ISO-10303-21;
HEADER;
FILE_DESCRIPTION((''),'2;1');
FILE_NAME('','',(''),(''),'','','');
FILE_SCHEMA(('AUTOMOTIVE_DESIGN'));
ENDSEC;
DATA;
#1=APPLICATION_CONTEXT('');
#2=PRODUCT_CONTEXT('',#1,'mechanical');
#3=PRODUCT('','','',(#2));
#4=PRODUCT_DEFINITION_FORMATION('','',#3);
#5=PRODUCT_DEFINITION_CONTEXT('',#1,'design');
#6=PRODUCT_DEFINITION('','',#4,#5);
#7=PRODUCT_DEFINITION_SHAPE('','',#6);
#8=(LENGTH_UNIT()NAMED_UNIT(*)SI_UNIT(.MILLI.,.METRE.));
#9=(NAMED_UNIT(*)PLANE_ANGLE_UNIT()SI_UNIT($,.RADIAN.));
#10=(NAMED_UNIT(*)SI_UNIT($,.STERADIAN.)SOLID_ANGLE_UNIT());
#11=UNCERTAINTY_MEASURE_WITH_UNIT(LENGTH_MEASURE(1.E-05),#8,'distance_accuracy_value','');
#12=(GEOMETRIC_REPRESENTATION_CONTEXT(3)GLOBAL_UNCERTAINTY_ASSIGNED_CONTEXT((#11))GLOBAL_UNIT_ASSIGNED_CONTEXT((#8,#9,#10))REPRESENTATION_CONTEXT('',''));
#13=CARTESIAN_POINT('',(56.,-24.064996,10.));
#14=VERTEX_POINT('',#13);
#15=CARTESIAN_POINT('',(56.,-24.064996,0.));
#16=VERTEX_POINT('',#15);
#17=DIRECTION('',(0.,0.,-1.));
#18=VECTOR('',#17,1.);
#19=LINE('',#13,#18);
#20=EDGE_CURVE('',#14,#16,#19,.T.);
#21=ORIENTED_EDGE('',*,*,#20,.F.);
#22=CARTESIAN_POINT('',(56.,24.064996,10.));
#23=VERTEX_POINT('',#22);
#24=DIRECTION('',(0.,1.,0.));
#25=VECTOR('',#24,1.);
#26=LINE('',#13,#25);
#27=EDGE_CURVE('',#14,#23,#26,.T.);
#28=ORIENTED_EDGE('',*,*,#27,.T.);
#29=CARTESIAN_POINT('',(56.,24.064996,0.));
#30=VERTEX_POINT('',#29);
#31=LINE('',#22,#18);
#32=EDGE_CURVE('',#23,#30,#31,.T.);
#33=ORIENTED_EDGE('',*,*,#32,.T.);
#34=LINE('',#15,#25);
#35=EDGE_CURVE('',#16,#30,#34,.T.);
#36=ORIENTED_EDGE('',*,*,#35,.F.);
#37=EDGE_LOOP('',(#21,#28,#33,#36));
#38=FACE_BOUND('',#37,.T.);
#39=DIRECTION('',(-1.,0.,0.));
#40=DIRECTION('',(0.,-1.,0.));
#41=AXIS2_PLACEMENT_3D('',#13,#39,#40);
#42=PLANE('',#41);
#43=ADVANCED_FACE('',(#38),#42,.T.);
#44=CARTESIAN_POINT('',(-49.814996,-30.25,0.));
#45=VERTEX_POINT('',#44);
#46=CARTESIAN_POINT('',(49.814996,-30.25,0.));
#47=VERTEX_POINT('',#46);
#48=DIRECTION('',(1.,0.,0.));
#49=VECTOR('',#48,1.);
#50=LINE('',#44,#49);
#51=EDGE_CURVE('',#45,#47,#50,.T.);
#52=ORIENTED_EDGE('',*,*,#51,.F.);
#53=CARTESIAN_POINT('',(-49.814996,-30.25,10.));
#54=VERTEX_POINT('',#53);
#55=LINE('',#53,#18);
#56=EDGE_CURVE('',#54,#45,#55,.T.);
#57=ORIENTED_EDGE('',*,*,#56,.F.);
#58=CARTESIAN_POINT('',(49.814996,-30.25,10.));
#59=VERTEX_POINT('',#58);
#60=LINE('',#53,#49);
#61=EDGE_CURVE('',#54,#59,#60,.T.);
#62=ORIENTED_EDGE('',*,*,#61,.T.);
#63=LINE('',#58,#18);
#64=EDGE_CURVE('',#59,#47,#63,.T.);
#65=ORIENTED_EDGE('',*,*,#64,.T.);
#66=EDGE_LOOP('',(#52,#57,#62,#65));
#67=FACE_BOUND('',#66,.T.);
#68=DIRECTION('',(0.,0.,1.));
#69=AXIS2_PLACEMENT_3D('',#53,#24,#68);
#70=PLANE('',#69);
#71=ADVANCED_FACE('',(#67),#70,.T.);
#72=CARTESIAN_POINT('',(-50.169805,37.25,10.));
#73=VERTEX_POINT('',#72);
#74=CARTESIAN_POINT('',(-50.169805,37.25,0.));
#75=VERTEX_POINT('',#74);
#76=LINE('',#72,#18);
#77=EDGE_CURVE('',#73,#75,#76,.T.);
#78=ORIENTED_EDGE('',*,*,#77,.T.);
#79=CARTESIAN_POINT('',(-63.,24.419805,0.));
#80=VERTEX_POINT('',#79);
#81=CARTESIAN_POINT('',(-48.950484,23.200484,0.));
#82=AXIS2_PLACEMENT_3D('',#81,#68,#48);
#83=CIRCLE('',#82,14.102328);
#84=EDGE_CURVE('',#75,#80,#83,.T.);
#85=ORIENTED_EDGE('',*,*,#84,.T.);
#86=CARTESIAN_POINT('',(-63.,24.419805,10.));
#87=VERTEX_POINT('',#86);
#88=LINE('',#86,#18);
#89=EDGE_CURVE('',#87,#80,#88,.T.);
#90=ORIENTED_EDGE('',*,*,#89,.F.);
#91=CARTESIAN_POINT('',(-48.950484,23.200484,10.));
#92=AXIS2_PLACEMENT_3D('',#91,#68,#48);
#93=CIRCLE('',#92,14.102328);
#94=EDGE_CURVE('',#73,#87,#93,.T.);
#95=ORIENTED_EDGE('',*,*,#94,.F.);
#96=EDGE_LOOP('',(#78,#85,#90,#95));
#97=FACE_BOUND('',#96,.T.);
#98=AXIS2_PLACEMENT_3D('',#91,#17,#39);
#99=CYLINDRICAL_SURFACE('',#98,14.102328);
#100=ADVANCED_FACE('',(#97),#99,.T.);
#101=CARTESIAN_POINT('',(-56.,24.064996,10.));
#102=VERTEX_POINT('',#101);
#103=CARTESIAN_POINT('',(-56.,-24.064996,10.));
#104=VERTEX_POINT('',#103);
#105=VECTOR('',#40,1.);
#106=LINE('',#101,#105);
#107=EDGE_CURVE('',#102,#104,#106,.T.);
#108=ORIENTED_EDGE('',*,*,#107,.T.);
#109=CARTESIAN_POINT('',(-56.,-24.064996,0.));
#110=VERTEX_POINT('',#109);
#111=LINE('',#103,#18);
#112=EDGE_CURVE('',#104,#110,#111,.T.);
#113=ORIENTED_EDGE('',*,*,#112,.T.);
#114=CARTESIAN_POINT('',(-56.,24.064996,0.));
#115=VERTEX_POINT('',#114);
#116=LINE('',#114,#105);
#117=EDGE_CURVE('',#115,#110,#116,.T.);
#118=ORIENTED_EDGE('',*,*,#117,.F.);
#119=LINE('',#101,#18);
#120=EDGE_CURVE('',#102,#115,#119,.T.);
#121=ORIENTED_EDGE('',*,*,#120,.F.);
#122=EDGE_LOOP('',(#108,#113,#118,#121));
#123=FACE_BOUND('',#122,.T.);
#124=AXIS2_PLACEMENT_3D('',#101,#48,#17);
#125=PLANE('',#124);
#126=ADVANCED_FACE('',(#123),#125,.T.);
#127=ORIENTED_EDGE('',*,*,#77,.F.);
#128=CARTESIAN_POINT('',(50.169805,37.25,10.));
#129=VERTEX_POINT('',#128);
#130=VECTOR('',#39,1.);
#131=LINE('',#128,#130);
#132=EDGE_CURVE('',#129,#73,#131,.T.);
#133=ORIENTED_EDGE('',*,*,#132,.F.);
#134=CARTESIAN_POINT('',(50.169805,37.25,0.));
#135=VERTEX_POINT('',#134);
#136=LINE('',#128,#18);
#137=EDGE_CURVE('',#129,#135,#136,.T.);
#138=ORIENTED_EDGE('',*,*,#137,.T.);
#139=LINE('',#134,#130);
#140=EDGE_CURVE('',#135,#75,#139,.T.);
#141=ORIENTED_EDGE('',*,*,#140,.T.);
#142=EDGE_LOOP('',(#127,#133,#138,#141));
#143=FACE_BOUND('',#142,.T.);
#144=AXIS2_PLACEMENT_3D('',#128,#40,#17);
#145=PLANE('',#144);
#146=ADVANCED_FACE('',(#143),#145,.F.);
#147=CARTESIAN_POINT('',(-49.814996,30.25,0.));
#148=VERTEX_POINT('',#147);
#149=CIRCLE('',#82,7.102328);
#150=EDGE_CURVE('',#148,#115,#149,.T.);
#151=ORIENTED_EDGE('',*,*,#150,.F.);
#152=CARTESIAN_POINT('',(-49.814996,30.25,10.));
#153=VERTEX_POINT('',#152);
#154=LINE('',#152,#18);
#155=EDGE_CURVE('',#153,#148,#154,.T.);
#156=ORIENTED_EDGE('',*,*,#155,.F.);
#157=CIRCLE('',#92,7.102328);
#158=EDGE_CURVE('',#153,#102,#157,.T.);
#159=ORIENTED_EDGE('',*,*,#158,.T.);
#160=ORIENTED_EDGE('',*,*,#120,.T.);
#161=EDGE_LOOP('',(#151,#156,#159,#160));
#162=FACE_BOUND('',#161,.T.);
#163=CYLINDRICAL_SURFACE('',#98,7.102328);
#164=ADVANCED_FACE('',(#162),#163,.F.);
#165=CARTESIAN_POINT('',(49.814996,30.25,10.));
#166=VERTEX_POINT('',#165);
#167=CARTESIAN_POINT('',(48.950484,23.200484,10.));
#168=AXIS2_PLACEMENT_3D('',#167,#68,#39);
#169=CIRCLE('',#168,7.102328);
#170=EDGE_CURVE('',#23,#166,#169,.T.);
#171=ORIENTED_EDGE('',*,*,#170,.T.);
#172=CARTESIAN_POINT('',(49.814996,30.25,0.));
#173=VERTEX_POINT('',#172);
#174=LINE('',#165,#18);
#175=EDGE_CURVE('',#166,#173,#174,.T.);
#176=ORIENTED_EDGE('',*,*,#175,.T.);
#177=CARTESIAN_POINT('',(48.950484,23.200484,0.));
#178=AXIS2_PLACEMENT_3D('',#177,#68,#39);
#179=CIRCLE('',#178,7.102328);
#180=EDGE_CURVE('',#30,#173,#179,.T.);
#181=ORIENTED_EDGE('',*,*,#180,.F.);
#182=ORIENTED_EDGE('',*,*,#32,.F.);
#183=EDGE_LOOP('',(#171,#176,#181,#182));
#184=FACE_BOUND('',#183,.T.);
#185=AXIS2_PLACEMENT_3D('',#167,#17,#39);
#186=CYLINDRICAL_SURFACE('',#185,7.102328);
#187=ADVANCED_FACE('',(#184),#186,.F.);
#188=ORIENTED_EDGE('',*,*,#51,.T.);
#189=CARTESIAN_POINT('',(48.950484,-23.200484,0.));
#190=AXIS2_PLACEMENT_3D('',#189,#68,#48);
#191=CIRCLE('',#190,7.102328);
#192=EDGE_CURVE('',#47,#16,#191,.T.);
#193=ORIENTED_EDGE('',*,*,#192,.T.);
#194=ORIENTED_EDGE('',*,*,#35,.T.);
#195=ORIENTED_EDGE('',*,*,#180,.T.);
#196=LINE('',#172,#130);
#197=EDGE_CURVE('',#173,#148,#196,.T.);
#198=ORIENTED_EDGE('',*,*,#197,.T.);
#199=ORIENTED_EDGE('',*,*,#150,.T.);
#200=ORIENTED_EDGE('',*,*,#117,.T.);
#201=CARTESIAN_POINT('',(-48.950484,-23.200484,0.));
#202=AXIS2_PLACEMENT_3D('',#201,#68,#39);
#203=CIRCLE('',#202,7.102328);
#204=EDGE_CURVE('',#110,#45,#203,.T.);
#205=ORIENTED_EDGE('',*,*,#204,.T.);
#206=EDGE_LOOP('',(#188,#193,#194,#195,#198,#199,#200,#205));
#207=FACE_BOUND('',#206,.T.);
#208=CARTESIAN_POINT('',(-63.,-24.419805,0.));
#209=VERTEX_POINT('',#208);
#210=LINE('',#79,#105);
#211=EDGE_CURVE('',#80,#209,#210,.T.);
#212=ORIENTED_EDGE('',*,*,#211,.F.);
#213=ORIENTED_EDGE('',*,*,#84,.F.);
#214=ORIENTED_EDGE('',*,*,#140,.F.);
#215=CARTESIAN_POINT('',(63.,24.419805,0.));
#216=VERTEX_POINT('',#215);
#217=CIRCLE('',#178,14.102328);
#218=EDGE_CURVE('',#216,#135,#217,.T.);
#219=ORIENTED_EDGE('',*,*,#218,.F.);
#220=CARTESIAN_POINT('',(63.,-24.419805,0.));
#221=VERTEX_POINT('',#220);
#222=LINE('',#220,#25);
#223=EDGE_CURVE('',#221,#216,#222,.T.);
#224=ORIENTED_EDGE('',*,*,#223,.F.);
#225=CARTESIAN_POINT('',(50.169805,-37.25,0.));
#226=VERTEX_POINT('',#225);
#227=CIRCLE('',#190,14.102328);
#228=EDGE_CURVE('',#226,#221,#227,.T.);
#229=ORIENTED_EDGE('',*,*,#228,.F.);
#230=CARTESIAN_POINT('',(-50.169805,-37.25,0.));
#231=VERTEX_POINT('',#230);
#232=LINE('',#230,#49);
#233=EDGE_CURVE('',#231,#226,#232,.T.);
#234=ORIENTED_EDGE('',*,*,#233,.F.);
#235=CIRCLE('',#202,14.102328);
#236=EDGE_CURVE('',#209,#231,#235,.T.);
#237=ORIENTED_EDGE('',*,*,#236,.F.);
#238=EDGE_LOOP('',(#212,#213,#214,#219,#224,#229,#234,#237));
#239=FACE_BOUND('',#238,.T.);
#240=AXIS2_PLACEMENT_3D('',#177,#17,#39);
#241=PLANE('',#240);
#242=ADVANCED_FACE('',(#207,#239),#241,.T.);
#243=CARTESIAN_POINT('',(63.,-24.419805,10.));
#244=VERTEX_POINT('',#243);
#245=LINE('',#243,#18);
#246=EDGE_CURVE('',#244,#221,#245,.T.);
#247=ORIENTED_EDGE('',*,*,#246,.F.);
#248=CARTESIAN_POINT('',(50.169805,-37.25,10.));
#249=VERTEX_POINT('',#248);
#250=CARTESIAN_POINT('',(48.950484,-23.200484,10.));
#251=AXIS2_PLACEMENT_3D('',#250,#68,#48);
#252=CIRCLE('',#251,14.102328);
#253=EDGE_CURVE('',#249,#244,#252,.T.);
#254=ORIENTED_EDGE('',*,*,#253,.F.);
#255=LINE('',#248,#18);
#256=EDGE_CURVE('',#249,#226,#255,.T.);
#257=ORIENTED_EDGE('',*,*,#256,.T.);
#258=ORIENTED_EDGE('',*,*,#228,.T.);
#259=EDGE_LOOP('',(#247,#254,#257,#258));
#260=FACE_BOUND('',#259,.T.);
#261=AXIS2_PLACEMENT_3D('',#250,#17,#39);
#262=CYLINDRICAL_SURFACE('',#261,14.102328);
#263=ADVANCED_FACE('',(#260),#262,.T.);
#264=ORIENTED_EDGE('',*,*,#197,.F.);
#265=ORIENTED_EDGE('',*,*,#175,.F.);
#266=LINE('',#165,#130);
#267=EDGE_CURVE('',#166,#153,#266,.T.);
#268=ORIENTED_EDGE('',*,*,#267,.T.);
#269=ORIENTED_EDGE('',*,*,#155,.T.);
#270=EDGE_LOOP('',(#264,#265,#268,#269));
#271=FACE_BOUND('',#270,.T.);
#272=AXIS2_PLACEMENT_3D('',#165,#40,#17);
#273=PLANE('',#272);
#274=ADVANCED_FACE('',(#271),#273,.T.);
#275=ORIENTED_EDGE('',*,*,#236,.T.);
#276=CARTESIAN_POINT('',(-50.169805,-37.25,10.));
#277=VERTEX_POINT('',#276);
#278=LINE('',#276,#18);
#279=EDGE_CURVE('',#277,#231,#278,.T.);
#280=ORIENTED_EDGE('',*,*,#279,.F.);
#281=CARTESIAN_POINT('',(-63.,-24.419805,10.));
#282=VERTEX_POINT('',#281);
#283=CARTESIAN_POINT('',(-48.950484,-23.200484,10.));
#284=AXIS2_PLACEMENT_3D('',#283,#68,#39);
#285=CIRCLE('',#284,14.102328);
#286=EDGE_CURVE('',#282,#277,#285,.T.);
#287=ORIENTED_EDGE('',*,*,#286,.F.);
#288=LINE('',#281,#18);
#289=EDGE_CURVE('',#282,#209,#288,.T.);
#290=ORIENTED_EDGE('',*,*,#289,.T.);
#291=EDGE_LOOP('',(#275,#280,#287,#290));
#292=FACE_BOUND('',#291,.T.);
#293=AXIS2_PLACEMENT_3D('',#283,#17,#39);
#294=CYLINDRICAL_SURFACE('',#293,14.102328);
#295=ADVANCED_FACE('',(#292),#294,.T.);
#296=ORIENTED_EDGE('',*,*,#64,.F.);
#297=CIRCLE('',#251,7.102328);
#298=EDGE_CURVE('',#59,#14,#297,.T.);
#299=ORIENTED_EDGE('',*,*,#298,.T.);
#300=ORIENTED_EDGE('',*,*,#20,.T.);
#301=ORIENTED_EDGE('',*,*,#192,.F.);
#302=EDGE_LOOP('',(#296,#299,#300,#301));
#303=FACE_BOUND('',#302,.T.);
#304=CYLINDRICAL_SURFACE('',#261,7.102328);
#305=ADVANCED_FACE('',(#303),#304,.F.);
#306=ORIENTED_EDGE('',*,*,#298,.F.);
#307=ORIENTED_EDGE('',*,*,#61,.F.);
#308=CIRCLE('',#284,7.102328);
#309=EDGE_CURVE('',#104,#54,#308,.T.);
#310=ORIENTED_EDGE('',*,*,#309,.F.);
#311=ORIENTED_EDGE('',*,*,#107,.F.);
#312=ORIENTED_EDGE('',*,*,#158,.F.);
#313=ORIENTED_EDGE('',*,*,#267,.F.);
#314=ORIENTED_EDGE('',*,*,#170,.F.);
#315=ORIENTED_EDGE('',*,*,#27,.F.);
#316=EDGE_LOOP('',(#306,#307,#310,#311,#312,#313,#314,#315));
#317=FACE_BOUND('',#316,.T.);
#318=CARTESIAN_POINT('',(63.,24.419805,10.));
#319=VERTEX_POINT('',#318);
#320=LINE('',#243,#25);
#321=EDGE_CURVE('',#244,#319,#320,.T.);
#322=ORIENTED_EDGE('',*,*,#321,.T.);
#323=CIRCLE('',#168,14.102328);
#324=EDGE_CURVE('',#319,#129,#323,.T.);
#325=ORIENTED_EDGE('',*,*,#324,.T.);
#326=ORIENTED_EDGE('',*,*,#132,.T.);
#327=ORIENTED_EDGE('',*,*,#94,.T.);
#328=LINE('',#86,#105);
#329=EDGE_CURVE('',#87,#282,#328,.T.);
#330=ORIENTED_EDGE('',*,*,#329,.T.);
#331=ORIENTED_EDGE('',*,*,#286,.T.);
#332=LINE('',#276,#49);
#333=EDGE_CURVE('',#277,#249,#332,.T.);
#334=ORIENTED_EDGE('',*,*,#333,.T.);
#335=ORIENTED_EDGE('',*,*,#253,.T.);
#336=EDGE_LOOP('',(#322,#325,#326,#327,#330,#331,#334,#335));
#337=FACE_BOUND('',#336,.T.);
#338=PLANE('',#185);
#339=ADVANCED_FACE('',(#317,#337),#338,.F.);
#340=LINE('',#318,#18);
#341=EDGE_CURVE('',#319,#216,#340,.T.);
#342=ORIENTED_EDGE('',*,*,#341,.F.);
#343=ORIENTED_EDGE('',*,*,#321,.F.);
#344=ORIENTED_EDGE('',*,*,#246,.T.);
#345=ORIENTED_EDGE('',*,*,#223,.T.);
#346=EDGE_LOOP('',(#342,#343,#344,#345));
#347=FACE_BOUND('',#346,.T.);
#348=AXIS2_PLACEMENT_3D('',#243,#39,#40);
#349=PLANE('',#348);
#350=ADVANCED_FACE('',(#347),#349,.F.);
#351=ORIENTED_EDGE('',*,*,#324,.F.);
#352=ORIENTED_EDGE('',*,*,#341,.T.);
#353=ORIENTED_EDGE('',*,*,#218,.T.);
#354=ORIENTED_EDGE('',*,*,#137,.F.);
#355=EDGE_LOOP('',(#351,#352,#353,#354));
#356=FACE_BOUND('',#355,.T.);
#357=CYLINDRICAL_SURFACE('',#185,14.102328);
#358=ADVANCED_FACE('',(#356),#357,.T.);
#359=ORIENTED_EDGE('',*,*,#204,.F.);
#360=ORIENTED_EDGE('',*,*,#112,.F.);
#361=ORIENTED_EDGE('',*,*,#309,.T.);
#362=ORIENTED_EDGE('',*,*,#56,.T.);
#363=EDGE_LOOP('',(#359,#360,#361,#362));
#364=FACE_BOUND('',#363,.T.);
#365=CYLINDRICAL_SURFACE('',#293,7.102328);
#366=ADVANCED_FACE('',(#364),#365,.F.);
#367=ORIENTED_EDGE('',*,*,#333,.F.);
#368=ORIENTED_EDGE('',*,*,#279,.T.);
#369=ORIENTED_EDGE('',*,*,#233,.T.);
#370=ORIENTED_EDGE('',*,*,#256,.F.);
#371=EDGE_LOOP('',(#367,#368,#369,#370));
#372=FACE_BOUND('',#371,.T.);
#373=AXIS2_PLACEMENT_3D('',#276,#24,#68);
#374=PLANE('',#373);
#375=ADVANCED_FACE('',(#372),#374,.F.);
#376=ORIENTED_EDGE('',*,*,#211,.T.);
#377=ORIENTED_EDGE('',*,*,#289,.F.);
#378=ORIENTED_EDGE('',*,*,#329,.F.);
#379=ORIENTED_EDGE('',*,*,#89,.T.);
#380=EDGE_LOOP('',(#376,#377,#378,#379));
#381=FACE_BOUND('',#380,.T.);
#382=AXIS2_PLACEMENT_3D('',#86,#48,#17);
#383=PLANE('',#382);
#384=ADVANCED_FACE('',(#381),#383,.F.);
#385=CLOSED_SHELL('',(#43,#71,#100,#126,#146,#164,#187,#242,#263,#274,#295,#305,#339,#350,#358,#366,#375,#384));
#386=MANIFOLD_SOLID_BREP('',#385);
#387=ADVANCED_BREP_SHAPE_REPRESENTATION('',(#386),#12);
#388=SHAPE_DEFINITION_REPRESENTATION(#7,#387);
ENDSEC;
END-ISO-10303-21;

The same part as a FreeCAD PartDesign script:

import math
import FreeCAD as App
import Part
import Sketcher
Q = App.Units.Quantity

doc = App.newDocument("Part")
body = doc.addObject("PartDesign::Body", "Body")

# Sketch on XY plane
sketch1 = doc.addObject("Sketcher::SketchObject", "Sketch")
body.addObject(sketch1)
sketch1.AttachmentSupport = (doc.XY_Plane, [""])
sketch1.MapMode = "FlatFace"
sketch1.addGeometry([
    Part.LineSegment(App.Vector(63, -24.419805, 0), App.Vector(63, 24.419805, 0)),  # 0
    Part.ArcOfCircle(Part.Circle(App.Vector(48.950484, 23.200484, 0), App.Vector(0, 0, 1), 14.102328), math.radians(4.960123), math.radians(85.039877)),  # 1
    Part.LineSegment(App.Vector(50.169805, 37.25, 0), App.Vector(-50.169805, 37.25, 0)),  # 2
    Part.ArcOfCircle(Part.Circle(App.Vector(-48.950484, 23.200484, 0), App.Vector(0, 0, 1), 14.102328), math.radians(94.960123), math.radians(175.039877)),  # 3
    Part.LineSegment(App.Vector(-63, 24.419805, 0), App.Vector(-63, -24.419805, 0)),  # 4
    Part.ArcOfCircle(Part.Circle(App.Vector(-48.950484, -23.200484, 0), App.Vector(0, 0, 1), 14.102328), math.radians(-175.039877), math.radians(-94.960123)),  # 5
    Part.LineSegment(App.Vector(-50.169805, -37.25, 0), App.Vector(50.169805, -37.25, 0)),  # 6
    Part.ArcOfCircle(Part.Circle(App.Vector(48.950484, -23.200484, 0), App.Vector(0, 0, 1), 14.102328), math.radians(-85.039877), math.radians(-4.960123)),  # 7
    Part.LineSegment(App.Vector(56, 24.064996, 0), App.Vector(56, -24.064996, 0)),  # 8
    Part.ArcOfCircle(Part.Circle(App.Vector(48.950484, -23.200484, 0), App.Vector(0, 0, 1), 7.102328), math.radians(-83.008484), math.radians(-6.991516)),  # 9
    Part.LineSegment(App.Vector(49.814996, -30.25, 0), App.Vector(-49.814996, -30.25, 0)),  # 10
    Part.ArcOfCircle(Part.Circle(App.Vector(-48.950484, -23.200484, 0), App.Vector(0, 0, 1), 7.102328), math.radians(-173.008484), math.radians(-96.991516)),  # 11
    Part.LineSegment(App.Vector(-56, -24.064996, 0), App.Vector(-56, 24.064996, 0)),  # 12
    Part.ArcOfCircle(Part.Circle(App.Vector(-48.950484, 23.200484, 0), App.Vector(0, 0, 1), 7.102328), math.radians(96.991516), math.radians(173.008484)),  # 13
    Part.LineSegment(App.Vector(-49.814996, 30.25, 0), App.Vector(49.814996, 30.25, 0)),  # 14
    Part.ArcOfCircle(Part.Circle(App.Vector(48.950484, 23.200484, 0), App.Vector(0, 0, 1), 7.102328), math.radians(6.991516), math.radians(83.008484)),  # 15
], False)
sketch1.addConstraint([
    Sketcher.Constraint("Coincident", 0, 2, 1, 1),
    Sketcher.Constraint("Coincident", 1, 2, 2, 1),
    Sketcher.Constraint("Coincident", 2, 2, 3, 1),
    Sketcher.Constraint("Coincident", 3, 2, 4, 1),
    Sketcher.Constraint("Coincident", 4, 2, 5, 1),
    Sketcher.Constraint("Coincident", 5, 2, 6, 1),
    Sketcher.Constraint("Coincident", 6, 2, 7, 1),
    Sketcher.Constraint("Coincident", 7, 2, 0, 1),
    Sketcher.Constraint("Coincident", 8, 2, 9, 2),
    Sketcher.Constraint("Coincident", 9, 1, 10, 1),
    Sketcher.Constraint("Coincident", 10, 2, 11, 2),
    Sketcher.Constraint("Coincident", 11, 1, 12, 1),
    Sketcher.Constraint("Coincident", 12, 2, 13, 2),
    Sketcher.Constraint("Coincident", 13, 1, 14, 1),
    Sketcher.Constraint("Coincident", 14, 2, 15, 2),
    Sketcher.Constraint("Coincident", 15, 1, 8, 1),
    Sketcher.Constraint("Vertical", 0),
    Sketcher.Constraint("Horizontal", 2),
    Sketcher.Constraint("Vertical", 4),
    Sketcher.Constraint("Horizontal", 6),
    Sketcher.Constraint("Vertical", 8),
    Sketcher.Constraint("Horizontal", 10),
    Sketcher.Constraint("Vertical", 12),
    Sketcher.Constraint("Horizontal", 14),
    Sketcher.Constraint("Coincident", 9, 3, 7, 3),
    Sketcher.Constraint("Coincident", 11, 3, 5, 3),
    Sketcher.Constraint("Coincident", 13, 3, 3, 3),
    Sketcher.Constraint("Coincident", 15, 3, 1, 3),
    Sketcher.Constraint("Equal", 1, 3),
    Sketcher.Constraint("Equal", 3, 5),
    Sketcher.Constraint("Equal", 5, 7),
    Sketcher.Constraint("Equal", 9, 11),
    Sketcher.Constraint("Equal", 11, 13),
    Sketcher.Constraint("Equal", 13, 15),
    Sketcher.Constraint("Symmetric", 1, 3, 5, 3, -1, 1),
    Sketcher.Constraint("Symmetric", 3, 3, 7, 3, -1, 1),
    Sketcher.Constraint("Symmetric", 1, 3, 3, 3, -2),
    Sketcher.Constraint("Horizontal", 0, 2, 3, 2),
    Sketcher.Constraint("Horizontal", 8, 2, 11, 1),
    Sketcher.Constraint("Vertical", 2, 2, 5, 2),
    Sketcher.Constraint("Vertical", 10, 2, 13, 1),
    Sketcher.Constraint("DistanceX", -1, 1, 0, 2, Q("63 mm")),
    Sketcher.Constraint("DistanceX", -1, 1, 8, 2, Q("56 mm")),
    Sketcher.Constraint("DistanceY", 6, 2, 9, 1, Q("7 mm")),
    Sketcher.Constraint("DistanceY", -1, 1, 1, 2, Q("37.25 mm")),
    Sketcher.Constraint("Radius", 1, Q("14.102328 mm")),
    Sketcher.Constraint("Radius", 9, Q("7.102328 mm")),
    Sketcher.Constraint("DistanceX", 2, 2, 2, 1, Q("100.33961 mm")),
    Sketcher.Constraint("DistanceY", 0, 1, 0, 2, Q("48.83961 mm")),
])
pad1 = doc.addObject("PartDesign::Pad", "Pad")
body.addObject(pad1)
pad1.Profile = sketch1
pad1.Length = 10

doc.recompute()
